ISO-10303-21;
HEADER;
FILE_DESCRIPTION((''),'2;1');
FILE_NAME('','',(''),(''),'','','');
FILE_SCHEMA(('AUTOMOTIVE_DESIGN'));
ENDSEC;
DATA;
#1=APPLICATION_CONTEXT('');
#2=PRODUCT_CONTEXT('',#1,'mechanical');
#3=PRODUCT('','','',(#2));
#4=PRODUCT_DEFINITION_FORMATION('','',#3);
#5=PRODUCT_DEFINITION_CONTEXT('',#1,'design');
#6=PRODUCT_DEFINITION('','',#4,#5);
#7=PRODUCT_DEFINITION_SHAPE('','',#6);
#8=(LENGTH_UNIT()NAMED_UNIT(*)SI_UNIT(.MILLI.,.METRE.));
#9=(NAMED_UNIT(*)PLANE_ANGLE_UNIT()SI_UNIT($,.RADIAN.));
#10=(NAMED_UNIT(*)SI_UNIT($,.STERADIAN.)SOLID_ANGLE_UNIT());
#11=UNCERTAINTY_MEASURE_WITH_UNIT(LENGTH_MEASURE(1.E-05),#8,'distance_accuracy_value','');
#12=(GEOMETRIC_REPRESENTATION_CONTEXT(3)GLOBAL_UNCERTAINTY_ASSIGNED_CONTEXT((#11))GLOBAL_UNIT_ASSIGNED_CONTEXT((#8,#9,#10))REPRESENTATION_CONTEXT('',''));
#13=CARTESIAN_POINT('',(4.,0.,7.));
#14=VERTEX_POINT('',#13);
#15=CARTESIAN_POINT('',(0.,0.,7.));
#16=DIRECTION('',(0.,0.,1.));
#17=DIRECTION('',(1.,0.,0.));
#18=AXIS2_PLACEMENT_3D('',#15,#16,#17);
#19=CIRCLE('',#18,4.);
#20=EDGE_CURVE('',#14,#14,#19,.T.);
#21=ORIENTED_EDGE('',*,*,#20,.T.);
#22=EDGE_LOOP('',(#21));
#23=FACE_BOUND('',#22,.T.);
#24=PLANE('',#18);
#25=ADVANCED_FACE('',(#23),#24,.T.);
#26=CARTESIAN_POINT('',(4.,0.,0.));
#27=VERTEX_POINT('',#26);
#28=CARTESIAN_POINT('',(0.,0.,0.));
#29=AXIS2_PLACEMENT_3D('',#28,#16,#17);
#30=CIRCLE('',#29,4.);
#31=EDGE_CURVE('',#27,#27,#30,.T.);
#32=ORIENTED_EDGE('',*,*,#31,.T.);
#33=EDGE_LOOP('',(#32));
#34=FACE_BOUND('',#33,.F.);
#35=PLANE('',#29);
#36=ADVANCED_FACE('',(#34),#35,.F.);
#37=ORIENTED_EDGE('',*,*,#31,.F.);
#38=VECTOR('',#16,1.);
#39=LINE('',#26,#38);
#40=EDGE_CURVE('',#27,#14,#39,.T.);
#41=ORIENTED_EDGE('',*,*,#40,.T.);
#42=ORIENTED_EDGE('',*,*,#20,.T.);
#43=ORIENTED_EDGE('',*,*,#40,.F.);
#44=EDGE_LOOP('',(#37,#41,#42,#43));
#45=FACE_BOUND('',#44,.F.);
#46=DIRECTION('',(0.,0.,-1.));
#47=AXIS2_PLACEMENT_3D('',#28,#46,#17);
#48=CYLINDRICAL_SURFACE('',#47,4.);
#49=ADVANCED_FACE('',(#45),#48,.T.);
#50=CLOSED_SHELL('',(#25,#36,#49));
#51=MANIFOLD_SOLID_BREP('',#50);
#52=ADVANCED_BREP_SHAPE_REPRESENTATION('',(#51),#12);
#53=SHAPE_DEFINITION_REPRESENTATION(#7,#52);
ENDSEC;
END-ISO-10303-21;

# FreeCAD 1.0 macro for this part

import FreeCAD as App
import Part
import Sketcher
from FreeCAD import Vector

doc = App.newDocument("Part")
params = doc.addObject("Spreadsheet::Sheet", "Params")
for row, (alias, value) in enumerate([
    ("sketch1_diameter", "8 mm"),
    ("pad1_length", "7 mm"),
], start=1):
    params.set(f"A{row}", alias)
    params.set(f"B{row}", "=" + value)
    params.setAlias(f"B{row}", alias)

body = doc.addObject("PartDesign::Body", "Body")

# Sketch on XY plane
sketch1 = body.newObject("Sketcher::SketchObject", "Sketch")
sketch1.AttachmentSupport = (doc.getObject("XY_Plane"), [""])
sketch1.MapMode = "FlatFace"
sketch1.addGeometry(Part.Circle(Vector(0, 0, 0), Vector(0, 0, 1), 4), False)
sketch1.addConstraint(Sketcher.Constraint("Coincident", 0, 3, -1, 1))
sketch1.addConstraint(Sketcher.Constraint("Diameter", 0, 8.0))
sketch1.setExpression("Constraints[1]", "Params.sketch1_diameter")
pad1 = body.newObject("PartDesign::Pad", "Pad")
pad1.Profile = sketch1
pad1.setExpression("Length", "Params.pad1_length")

doc.recompute()
